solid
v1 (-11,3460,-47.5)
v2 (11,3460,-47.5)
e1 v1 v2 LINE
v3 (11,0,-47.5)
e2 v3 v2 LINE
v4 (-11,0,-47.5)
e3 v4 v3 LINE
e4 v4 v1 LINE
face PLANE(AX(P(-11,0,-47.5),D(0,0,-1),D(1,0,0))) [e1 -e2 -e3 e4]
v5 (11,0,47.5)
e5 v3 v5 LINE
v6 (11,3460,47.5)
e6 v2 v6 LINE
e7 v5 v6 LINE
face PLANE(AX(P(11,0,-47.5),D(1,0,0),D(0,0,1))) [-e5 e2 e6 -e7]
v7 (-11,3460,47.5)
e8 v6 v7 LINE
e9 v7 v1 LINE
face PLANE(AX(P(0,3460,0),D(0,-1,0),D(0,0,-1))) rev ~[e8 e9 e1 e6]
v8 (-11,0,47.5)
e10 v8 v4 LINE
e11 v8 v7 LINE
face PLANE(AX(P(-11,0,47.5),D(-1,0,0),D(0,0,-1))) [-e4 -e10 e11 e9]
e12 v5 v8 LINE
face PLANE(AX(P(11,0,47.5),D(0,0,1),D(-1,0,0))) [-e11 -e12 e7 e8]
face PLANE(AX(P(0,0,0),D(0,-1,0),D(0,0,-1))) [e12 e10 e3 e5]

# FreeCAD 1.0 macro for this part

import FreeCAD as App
import Part
import Sketcher
from FreeCAD import Vector

doc = App.newDocument("Part")
body = doc.addObject("PartDesign::Body", "Body")

sketch1 = body.newObject("Sketcher::SketchObject", "Sketch")
sketch1.AttachmentSupport = (doc.getObject("XZ_Plane"), [""])
sketch1.MapMode = "FlatFace"
sketch1.addGeometry([
    Part.LineSegment(Vector(-11, 47.5, 0), Vector(-11, -47.5, 0)),
    Part.LineSegment(Vector(-11, -47.5, 0), Vector(11, -47.5, 0)),
    Part.LineSegment(Vector(11, -47.5, 0), Vector(11, 47.5, 0)),
    Part.LineSegment(Vector(11, 47.5, 0), Vector(-11, 47.5, 0)),
], False)
sketch1.addConstraint([
    Sketcher.Constraint("Coincident", 0, 2, 1, 1),
    Sketcher.Constraint("Coincident", 1, 2, 2, 1),
    Sketcher.Constraint("Coincident", 2, 2, 3, 1),
    Sketcher.Constraint("Coincident", 3, 2, 0, 1),
    Sketcher.Constraint("Vertical", 0),
    Sketcher.Constraint("Horizontal", 1),
    Sketcher.Constraint("Vertical", 2),
    Sketcher.Constraint("Horizontal", 3),
    Sketcher.Constraint("Symmetric", 0, 2, 2, 2, -1, 1),
    Sketcher.Constraint("DistanceX", 1, 1, 1, 2, 22.0),
    Sketcher.Constraint("DistanceY", 0, 2, 0, 1, 95.0),
])
pad1 = body.newObject("PartDesign::Pad", "Pad")
pad1.Profile = sketch1
pad1.Length = 3460
pad1.Reversed = True

doc.recompute()
